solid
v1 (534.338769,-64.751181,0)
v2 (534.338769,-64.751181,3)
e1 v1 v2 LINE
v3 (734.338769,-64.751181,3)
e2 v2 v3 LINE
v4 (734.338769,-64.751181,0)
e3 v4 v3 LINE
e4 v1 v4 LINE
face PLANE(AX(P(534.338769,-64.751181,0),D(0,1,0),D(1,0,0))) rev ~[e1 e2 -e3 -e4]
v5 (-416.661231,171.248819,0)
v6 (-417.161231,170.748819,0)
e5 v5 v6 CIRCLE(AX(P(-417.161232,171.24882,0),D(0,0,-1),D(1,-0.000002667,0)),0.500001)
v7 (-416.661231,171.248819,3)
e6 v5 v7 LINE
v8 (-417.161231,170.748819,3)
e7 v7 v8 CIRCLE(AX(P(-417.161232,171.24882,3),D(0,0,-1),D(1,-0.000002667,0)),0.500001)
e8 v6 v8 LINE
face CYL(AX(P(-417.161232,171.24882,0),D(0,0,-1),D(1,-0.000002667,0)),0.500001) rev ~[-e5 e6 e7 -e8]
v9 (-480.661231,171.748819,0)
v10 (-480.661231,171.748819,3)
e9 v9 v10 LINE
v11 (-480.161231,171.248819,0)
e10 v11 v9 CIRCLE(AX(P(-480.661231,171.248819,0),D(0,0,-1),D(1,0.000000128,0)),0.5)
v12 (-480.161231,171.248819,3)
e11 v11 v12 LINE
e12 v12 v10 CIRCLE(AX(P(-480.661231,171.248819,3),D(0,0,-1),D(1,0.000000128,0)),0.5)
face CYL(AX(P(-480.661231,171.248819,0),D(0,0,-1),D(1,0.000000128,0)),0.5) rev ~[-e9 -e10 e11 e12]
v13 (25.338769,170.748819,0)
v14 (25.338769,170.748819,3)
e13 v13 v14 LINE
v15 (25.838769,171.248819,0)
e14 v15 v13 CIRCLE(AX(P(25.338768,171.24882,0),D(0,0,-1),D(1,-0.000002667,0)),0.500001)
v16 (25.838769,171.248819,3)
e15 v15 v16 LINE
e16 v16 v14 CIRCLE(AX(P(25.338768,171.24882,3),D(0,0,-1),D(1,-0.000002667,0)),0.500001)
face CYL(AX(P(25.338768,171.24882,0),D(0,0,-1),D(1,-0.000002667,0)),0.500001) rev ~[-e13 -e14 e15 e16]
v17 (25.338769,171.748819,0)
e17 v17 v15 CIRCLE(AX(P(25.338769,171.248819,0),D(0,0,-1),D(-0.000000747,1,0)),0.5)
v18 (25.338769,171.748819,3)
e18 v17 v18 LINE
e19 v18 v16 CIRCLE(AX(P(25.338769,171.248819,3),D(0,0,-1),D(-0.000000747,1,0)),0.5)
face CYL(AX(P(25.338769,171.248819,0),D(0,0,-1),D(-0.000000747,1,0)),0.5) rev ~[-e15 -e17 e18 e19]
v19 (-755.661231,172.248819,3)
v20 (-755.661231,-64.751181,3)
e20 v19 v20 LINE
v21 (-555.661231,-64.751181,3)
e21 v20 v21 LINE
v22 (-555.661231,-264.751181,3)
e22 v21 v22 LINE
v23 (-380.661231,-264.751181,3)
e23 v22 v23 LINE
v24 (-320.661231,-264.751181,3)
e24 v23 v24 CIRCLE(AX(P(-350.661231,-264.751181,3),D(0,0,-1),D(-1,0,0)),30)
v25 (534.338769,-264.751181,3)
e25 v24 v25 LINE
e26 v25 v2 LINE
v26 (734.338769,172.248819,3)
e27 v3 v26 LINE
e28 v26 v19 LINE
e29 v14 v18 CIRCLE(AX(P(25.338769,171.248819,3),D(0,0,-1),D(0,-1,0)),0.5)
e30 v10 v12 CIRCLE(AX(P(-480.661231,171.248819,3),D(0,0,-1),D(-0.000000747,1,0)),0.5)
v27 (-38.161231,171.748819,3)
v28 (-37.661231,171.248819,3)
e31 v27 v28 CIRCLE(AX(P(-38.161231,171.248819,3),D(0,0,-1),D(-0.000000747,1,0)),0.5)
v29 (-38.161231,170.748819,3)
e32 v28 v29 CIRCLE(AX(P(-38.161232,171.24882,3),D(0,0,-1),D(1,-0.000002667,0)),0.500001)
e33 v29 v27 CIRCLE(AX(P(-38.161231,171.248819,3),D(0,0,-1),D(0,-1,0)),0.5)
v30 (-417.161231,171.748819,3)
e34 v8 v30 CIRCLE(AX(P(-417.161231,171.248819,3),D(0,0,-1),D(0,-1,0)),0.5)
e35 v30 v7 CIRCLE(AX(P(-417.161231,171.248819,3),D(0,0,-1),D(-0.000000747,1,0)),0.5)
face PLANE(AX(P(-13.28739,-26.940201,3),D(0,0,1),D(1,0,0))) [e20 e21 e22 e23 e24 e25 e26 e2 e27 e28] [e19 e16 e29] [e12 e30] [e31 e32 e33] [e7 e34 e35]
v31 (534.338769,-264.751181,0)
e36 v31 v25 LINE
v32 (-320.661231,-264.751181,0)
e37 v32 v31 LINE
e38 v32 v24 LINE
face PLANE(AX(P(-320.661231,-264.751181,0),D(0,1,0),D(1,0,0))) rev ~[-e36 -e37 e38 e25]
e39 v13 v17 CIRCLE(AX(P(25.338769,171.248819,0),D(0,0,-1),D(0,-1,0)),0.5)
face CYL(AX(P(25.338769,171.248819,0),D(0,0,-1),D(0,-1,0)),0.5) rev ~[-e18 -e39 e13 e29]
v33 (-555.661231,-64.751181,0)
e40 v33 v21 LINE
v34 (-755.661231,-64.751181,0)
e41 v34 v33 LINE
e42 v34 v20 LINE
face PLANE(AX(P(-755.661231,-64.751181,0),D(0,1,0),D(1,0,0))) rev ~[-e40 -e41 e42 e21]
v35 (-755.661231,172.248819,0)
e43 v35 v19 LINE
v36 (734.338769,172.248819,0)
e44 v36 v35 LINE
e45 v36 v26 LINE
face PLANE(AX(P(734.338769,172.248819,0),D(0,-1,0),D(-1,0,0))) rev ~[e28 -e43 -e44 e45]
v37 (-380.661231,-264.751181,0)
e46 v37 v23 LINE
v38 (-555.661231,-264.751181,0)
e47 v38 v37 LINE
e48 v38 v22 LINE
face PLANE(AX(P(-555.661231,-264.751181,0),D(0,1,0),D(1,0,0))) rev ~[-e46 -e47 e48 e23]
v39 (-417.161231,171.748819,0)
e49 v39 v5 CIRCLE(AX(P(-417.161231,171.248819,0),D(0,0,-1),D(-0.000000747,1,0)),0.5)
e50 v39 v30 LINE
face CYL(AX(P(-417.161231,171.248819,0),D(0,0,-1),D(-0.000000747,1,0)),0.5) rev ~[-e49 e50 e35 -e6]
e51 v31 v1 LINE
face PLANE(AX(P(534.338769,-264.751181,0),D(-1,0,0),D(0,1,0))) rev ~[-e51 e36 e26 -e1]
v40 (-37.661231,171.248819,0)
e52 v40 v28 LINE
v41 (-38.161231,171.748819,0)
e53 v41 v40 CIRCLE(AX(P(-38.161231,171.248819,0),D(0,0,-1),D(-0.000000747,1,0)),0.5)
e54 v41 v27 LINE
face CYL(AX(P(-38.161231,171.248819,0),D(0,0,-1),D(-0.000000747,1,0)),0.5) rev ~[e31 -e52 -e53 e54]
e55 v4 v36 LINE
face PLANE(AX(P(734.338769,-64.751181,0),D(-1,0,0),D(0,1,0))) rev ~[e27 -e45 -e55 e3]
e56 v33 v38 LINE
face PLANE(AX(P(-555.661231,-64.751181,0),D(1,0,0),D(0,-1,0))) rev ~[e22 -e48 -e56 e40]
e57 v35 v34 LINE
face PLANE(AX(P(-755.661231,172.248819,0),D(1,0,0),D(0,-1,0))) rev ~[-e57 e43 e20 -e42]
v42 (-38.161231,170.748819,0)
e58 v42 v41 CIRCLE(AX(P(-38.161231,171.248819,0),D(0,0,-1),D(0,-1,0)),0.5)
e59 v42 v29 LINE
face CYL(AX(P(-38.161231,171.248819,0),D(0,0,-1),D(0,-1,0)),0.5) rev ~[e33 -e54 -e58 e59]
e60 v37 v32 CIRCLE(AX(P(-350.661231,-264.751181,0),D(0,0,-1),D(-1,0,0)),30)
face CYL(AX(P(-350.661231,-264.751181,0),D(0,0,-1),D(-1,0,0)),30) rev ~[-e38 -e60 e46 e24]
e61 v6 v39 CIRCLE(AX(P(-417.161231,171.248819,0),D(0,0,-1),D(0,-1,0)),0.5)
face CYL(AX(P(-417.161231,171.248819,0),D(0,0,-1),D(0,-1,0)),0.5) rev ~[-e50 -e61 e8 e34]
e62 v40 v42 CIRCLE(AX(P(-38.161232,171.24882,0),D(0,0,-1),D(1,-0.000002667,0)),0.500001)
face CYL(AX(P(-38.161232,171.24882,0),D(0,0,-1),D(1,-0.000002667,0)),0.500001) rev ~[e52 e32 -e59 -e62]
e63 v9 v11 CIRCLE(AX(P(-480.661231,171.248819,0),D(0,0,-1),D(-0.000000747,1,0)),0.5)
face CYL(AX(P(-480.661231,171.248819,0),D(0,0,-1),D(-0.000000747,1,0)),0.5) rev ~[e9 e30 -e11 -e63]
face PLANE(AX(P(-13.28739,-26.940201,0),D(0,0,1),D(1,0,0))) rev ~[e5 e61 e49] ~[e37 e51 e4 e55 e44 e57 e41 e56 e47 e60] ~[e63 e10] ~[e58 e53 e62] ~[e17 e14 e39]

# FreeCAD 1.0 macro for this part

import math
import FreeCAD as App
import Part
import Sketcher
from FreeCAD import Vector

doc = App.newDocument("Part")
body = doc.addObject("PartDesign::Body", "Body")

# Sketch on XY plane
sketch1 = body.newObject("Sketcher::SketchObject", "Sketch")
sketch1.AttachmentSupport = (doc.getObject("XY_Plane"), [""])
sketch1.MapMode = "FlatFace"
sketch1.addGeometry([
    Part.LineSegment(Vector(-755.66, 172.25, 0), Vector(-755.66, -64.75, 0)),  # 0
    Part.LineSegment(Vector(-755.66, -64.75, 0), Vector(-555.66, -64.75, 0)),  # 1
    Part.LineSegment(Vector(-555.66, -64.75, 0), Vector(-555.66, -264.75, 0)),  # 2
    Part.LineSegment(Vector(-555.66, -264.75, 0), Vector(-380.66, -264.75, 0)),  # 3
    Part.ArcOfCircle(Part.Circle(Vector(-350.66, -264.75, 0), Vector(0, 0, 1), 30), math.radians(0), math.radians(180)),  # 4
    Part.LineSegment(Vector(-320.66, -264.75, 0), Vector(534.34, -264.75, 0)),  # 5
    Part.LineSegment(Vector(534.34, -264.75, 0), Vector(534.34, -64.75, 0)),  # 6
    Part.LineSegment(Vector(534.34, -64.75, 0), Vector(734.34, -64.75, 0)),  # 7
    Part.LineSegment(Vector(734.34, -64.75, 0), Vector(734.34, 172.25, 0)),  # 8
    Part.LineSegment(Vector(734.34, 172.25, 0), Vector(-755.66, 172.25, 0)),  # 9
    Part.ArcOfCircle(Part.Circle(Vector(-480.66, 171.25, 0), Vector(0, 0, 1), 0.5), math.radians(0), math.radians(90)),  # 10
    Part.ArcOfCircle(Part.Circle(Vector(-480.66, 171.25, 0), Vector(0, 0, 1), 0.5), math.radians(90), math.radians(360)),  # 11
    Part.ArcOfCircle(Part.Circle(Vector(-417.16, 171.25, 0), Vector(0, 0, 1), 0.5), math.radians(-90), math.radians(0)),  # 12
    Part.ArcOfCircle(Part.Circle(Vector(-417.16, 171.25, 0), Vector(0, 0, 1), 0.5), math.radians(90), math.radians(270)),  # 13
    Part.ArcOfCircle(Part.Circle(Vector(-417.16, 171.25, 0), Vector(0, 0, 1), 0.5), math.radians(0), math.radians(90)),  # 14
    Part.ArcOfCircle(Part.Circle(Vector(-38.16, 171.25, 0), Vector(0, 0, 1), 0.5), math.radians(-90), math.radians(0)),  # 15
    Part.ArcOfCircle(Part.Circle(Vector(-38.16, 171.25, 0), Vector(0, 0, 1), 0.5), math.radians(90), math.radians(270)),  # 16
    Part.ArcOfCircle(Part.Circle(Vector(-38.16, 171.25, 0), Vector(0, 0, 1), 0.5), math.radians(0), math.radians(90)),  # 17
    Part.ArcOfCircle(Part.Circle(Vector(25.34, 171.25, 0), Vector(0, 0, 1), 0.5), math.radians(-90), math.radians(0)),  # 18
    Part.ArcOfCircle(Part.Circle(Vector(25.34, 171.25, 0), Vector(0, 0, 1), 0.5), math.radians(90), math.radians(270)),  # 19
    Part.ArcOfCircle(Part.Circle(Vector(25.34, 171.25, 0), Vector(0, 0, 1), 0.5), math.radians(0), math.radians(90)),  # 20
], False)
sketch1.addConstraint([
    Sketcher.Constraint("Coincident", 0, 2, 1, 1),
    Sketcher.Constraint("Coincident", 1, 2, 2, 1),
    Sketcher.Constraint("Coincident", 2, 2, 3, 1),
    Sketcher.Constraint("Coincident", 3, 2, 4, 2),
    Sketcher.Constraint("Coincident", 4, 1, 5, 1),
    Sketcher.Constraint("Coincident", 5, 2, 6, 1),
    Sketcher.Constraint("Coincident", 6, 2, 7, 1),
    Sketcher.Constraint("Coincident", 7, 2, 8, 1),
    Sketcher.Constraint("Coincident", 8, 2, 9, 1),
    Sketcher.Constraint("Coincident", 9, 2, 0, 1),
    Sketcher.Constraint("Tangent", 10, 1, 11, 2),
    Sketcher.Constraint("Coincident", 11, 1, 10, 2),
    Sketcher.Constraint("Coincident", 12, 1, 13, 2),
    Sketcher.Constraint("Tangent", 13, 1, 14, 2),
    Sketcher.Constraint("Tangent", 14, 1, 12, 2),
    Sketcher.Constraint("Coincident", 15, 1, 16, 2),
    Sketcher.Constraint("Tangent", 16, 1, 17, 2),
    Sketcher.Constraint("Tangent", 17, 1, 15, 2),
    Sketcher.Constraint("Coincident", 18, 1, 19, 2),
    Sketcher.Constraint("Tangent", 19, 1, 20, 2),
    Sketcher.Constraint("Tangent", 20, 1, 18, 2),
    Sketcher.Constraint("Vertical", 0),
    Sketcher.Constraint("Horizontal", 1),
    Sketcher.Constraint("Vertical", 2),
    Sketcher.Constraint("Horizontal", 3),
    Sketcher.Constraint("Horizontal", 5),
    Sketcher.Constraint("Vertical", 6),
    Sketcher.Constraint("Horizontal", 7),
    Sketcher.Constraint("Vertical", 8),
    Sketcher.Constraint("Horizontal", 9),
    Sketcher.Constraint("Equal", 11, 12),
    Sketcher.Constraint("Equal", 12, 13),
    Sketcher.Constraint("Equal", 14, 15),
    Sketcher.Constraint("Equal", 15, 16),
    Sketcher.Constraint("Equal", 17, 18),
    Sketcher.Constraint("Equal", 18, 19),
    Sketcher.Constraint("Horizontal", 11, 3, 12, 3),
    Sketcher.Constraint("Horizontal", 14, 3, 15, 3),
    Sketcher.Constraint("Horizontal", 17, 3, 18, 3),
    Sketcher.Constraint("Horizontal", 4, 3, 2, 2),
    Sketcher.Constraint("Horizontal", 3, 2, 4, 1),
    Sketcher.Constraint("Horizontal", 1, 2, 6, 2),
    Sketcher.Constraint("Horizontal", 20, 3, 10, 1),
    Sketcher.Constraint("Horizontal", 10, 1, 14, 1),
    Sketcher.Constraint("Horizontal", 14, 1, 17, 1),
    Sketcher.Constraint("Horizontal", 17, 1, 20, 1),
    Sketcher.Constraint("Vertical", 10, 3, 11, 1),
    Sketcher.Constraint("Vertical", 14, 3, 12, 1),
    Sketcher.Constraint("Vertical", 12, 1, 13, 1),
    Sketcher.Constraint("Vertical", 17, 3, 15, 1),
    Sketcher.Constraint("Vertical", 15, 1, 16, 1),
    Sketcher.Constraint("Vertical", 20, 3, 18, 1),
    Sketcher.Constraint("Vertical", 18, 1, 19, 1),
    Sketcher.Constraint("Equal", 1, 7),
    Sketcher.Constraint("Equal", 7, 2),
    Sketcher.Constraint("Radius", 4, 30.0),
    Sketcher.Constraint("Radius", 10, 0.5),
    Sketcher.Constraint("DistanceX", 1, 1, 1, 2, 200.0),
    Sketcher.Constraint("DistanceX", 3, 1, 3, 2, 175.0),
    Sketcher.Constraint("DistanceX", 5, 1, 5, 2, 855.0),
    Sketcher.Constraint("DistanceY", 0, 2, 0, 1, 237.0),
    Sketcher.Constraint("DistanceX", 10, 3, 4, 3, 130.0),
    Sketcher.Constraint("DistanceY", 4, 3, 10, 3, 436.0),
    Sketcher.Constraint("DistanceX", 14, 3, 15, 3, 378.999998),
    Sketcher.Constraint("DistanceX", 20, 3, 5, 2, 509.0),
    Sketcher.Constraint("DistanceX", 10, 1, 12, 3, 62.999999),
    Sketcher.Constraint("DistanceX", 4, 3, -1, 1, 350.661231),
    Sketcher.Constraint("DistanceY", 4, 3, -1, 1, 264.751181),
])
pad1 = body.newObject("PartDesign::Pad", "Pad")
pad1.Profile = sketch1
pad1.Length = 3

# Sketch on XY plane
sketch2 = body.newObject("Sketcher::SketchObject", "Sketch001")
sketch2.AttachmentSupport = (doc.getObject("XY_Plane"), [""])
sketch2.MapMode = "FlatFace"
sketch2.addGeometry([
    Part.LineSegment(Vector(-755.66, 172.25, 0), Vector(-755.66, -64.75, 0)),  # 0
    Part.LineSegment(Vector(-755.66, -64.75, 0), Vector(-555.66, -64.75, 0)),  # 1
    Part.LineSegment(Vector(-555.66, -64.75, 0), Vector(-555.66, -264.75, 0)),  # 2
    Part.LineSegment(Vector(-555.66, -264.75, 0), Vector(534.34, -264.75, 0)),  # 3
    Part.LineSegment(Vector(534.34, -264.75, 0), Vector(534.34, -64.75, 0)),  # 4
    Part.LineSegment(Vector(534.34, -64.75, 0), Vector(734.34, -64.75, 0)),  # 5
    Part.LineSegment(Vector(734.34, -64.75, 0), Vector(734.34, 172.25, 0)),  # 6
    Part.LineSegment(Vector(734.34, 172.25, 0), Vector(-755.66, 172.25, 0)),  # 7
    Part.ArcOfCircle(Part.Circle(Vector(-480.66, 171.25, 0), Vector(0, 0, 1), 0.5), math.radians(0), math.radians(90)),  # 8
    Part.ArcOfCircle(Part.Circle(Vector(-480.66, 171.25, 0), Vector(0, 0, 1), 0.5), math.radians(90), math.radians(360)),  # 9
    Part.ArcOfCircle(Part.Circle(Vector(-417.16, 171.25, 0), Vector(0, 0, 1), 0.5), math.radians(-90), math.radians(0)),  # 10
    Part.ArcOfCircle(Part.Circle(Vector(-417.16, 171.25, 0), Vector(0, 0, 1), 0.5), math.radians(90), math.radians(270)),  # 11
    Part.ArcOfCircle(Part.Circle(Vector(-417.16, 171.25, 0), Vector(0, 0, 1), 0.5), math.radians(0), math.radians(90)),  # 12
    Part.ArcOfCircle(Part.Circle(Vector(-38.16, 171.25, 0), Vector(0, 0, 1), 0.5), math.radians(-90), math.radians(0)),  # 13
    Part.ArcOfCircle(Part.Circle(Vector(-38.16, 171.25, 0), Vector(0, 0, 1), 0.5), math.radians(90), math.radians(270)),  # 14
    Part.ArcOfCircle(Part.Circle(Vector(-38.16, 171.25, 0), Vector(0, 0, 1), 0.5), math.radians(0), math.radians(90)),  # 15
    Part.ArcOfCircle(Part.Circle(Vector(25.34, 171.25, 0), Vector(0, 0, 1), 0.5), math.radians(-90), math.radians(0)),  # 16
    Part.ArcOfCircle(Part.Circle(Vector(25.34, 171.25, 0), Vector(0, 0, 1), 0.5), math.radians(90), math.radians(270)),  # 17
    Part.ArcOfCircle(Part.Circle(Vector(25.34, 171.25, 0), Vector(0, 0, 1), 0.5), math.radians(0), math.radians(90)),  # 18
], False)
sketch2.addConstraint([
    Sketcher.Constraint("Coincident", 0, 2, 1, 1),
    Sketcher.Constraint("Coincident", 1, 2, 2, 1),
    Sketcher.Constraint("Coincident", 2, 2, 3, 1),
    Sketcher.Constraint("Coincident", 3, 2, 4, 1),
    Sketcher.Constraint("Coincident", 4, 2, 5, 1),
    Sketcher.Constraint("Coincident", 5, 2, 6, 1),
    Sketcher.Constraint("Coincident", 6, 2, 7, 1),
    Sketcher.Constraint("Coincident", 7, 2, 0, 1),
    Sketcher.Constraint("Tangent", 8, 1, 9, 2),
    Sketcher.Constraint("Coincident", 9, 1, 8, 2),
    Sketcher.Constraint("Coincident", 10, 1, 11, 2),
    Sketcher.Constraint("Tangent", 11, 1, 12, 2),
    Sketcher.Constraint("Tangent", 12, 1, 10, 2),
    Sketcher.Constraint("Coincident", 13, 1, 14, 2),
    Sketcher.Constraint("Tangent", 14, 1, 15, 2),
    Sketcher.Constraint("Tangent", 15, 1, 13, 2),
    Sketcher.Constraint("Coincident", 16, 1, 17, 2),
    Sketcher.Constraint("Tangent", 17, 1, 18, 2),
    Sketcher.Constraint("Tangent", 18, 1, 16, 2),
    Sketcher.Constraint("Vertical", 0),
    Sketcher.Constraint("Horizontal", 1),
    Sketcher.Constraint("Vertical", 2),
    Sketcher.Constraint("Horizontal", 3),
    Sketcher.Constraint("Vertical", 4),
    Sketcher.Constraint("Horizontal", 5),
    Sketcher.Constraint("Vertical", 6),
    Sketcher.Constraint("Horizontal", 7),
    Sketcher.Constraint("Equal", 9, 10),
    Sketcher.Constraint("Equal", 10, 11),
    Sketcher.Constraint("Equal", 12, 13),
    Sketcher.Constraint("Equal", 13, 14),
    Sketcher.Constraint("Equal", 15, 16),
    Sketcher.Constraint("Equal", 16, 17),
    Sketcher.Constraint("Horizontal", 9, 3, 10, 3),
    Sketcher.Constraint("Horizontal", 12, 3, 13, 3),
    Sketcher.Constraint("Horizontal", 15, 3, 16, 3),
    Sketcher.Constraint("Horizontal", 1, 2, 4, 2),
    Sketcher.Constraint("Horizontal", 18, 3, 8, 1),
    Sketcher.Constraint("Horizontal", 8, 1, 12, 1),
    Sketcher.Constraint("Horizontal", 12, 1, 15, 1),
    Sketcher.Constraint("Horizontal", 15, 1, 18, 1),
    Sketcher.Constraint("Vertical", 8, 3, 9, 1),
    Sketcher.Constraint("Vertical", 12, 3, 10, 1),
    Sketcher.Constraint("Vertical", 10, 1, 11, 1),
    Sketcher.Constraint("Vertical", 15, 3, 13, 1),
    Sketcher.Constraint("Vertical", 13, 1, 14, 1),
    Sketcher.Constraint("Vertical", 18, 3, 16, 1),
    Sketcher.Constraint("Vertical", 16, 1, 17, 1),
    Sketcher.Constraint("Equal", 1, 5),
    Sketcher.Constraint("Equal", 5, 2),
    Sketcher.Constraint("Radius", 8, 0.5),
    Sketcher.Constraint("DistanceX", 1, 1, 1, 2, 200.0),
    Sketcher.Constraint("DistanceX", 3, 1, 3, 2, 1090.0),
    Sketcher.Constraint("DistanceY", 0, 2, 0, 1, 237.0),
    Sketcher.Constraint("DistanceX", 12, 3, 13, 3, 378.999998),
    Sketcher.Constraint("DistanceX", 0, 2, 9, 3, 275.0),
    Sketcher.Constraint("DistanceY", 0, 2, 9, 3, 236.0),
    Sketcher.Constraint("DistanceX", 18, 3, 3, 2, 509.0),
    Sketcher.Constraint("DistanceX", 8, 1, 10, 3, 62.999999),
    Sketcher.Constraint("DistanceX", 8, 3, -1, 1, 480.661231),
    Sketcher.Constraint("DistanceY", -1, 1, 8, 3, 171.248819),
])
pocket1 = body.newObject("PartDesign::Pocket", "Pocket")
pocket1.Profile = sketch2
pocket1.Length = 25

# Sketch on XY plane
sketch3 = body.newObject("Sketcher::SketchObject", "Sketch002")
sketch3.AttachmentSupport = (doc.getObject("XY_Plane"), [""])
sketch3.MapMode = "FlatFace"
sketch3.addGeometry([
    Part.LineSegment(Vector(-755.66, 172.25, 0), Vector(-755.66, -64.75, 0)),  # 0
    Part.LineSegment(Vector(-755.66, -64.75, 0), Vector(-555.66, -64.75, 0)),  # 1
    Part.LineSegment(Vector(-555.66, -64.75, 0), Vector(-555.66, -264.75, 0)),  # 2
    Part.LineSegment(Vector(-555.66, -264.75, 0), Vector(534.34, -264.75, 0)),  # 3
    Part.LineSegment(Vector(534.34, -264.75, 0), Vector(534.34, -64.75, 0)),  # 4
    Part.LineSegment(Vector(534.34, -64.75, 0), Vector(734.34, -64.75, 0)),  # 5
    Part.LineSegment(Vector(734.34, -64.75, 0), Vector(734.34, 172.25, 0)),  # 6
    Part.LineSegment(Vector(734.34, 172.25, 0), Vector(-755.66, 172.25, 0)),  # 7
    Part.ArcOfCircle(Part.Circle(Vector(-480.66, 171.25, 0), Vector(0, 0, 1), 0.5), math.radians(0), math.radians(90)),  # 8
    Part.ArcOfCircle(Part.Circle(Vector(-480.66, 171.25, 0), Vector(0, 0, 1), 0.5), math.radians(90), math.radians(360)),  # 9
    Part.ArcOfCircle(Part.Circle(Vector(-417.16, 171.25, 0), Vector(0, 0, 1), 0.5), math.radians(-90), math.radians(0)),  # 10
    Part.ArcOfCircle(Part.Circle(Vector(-417.16, 171.25, 0), Vector(0, 0, 1), 0.5), math.radians(90), math.radians(270)),  # 11
    Part.ArcOfCircle(Part.Circle(Vector(-417.16, 171.25, 0), Vector(0, 0, 1), 0.5), math.radians(0), math.radians(90)),  # 12
    Part.ArcOfCircle(Part.Circle(Vector(-38.16, 171.25, 0), Vector(0, 0, 1), 0.5), math.radians(-90), math.radians(0)),  # 13
    Part.ArcOfCircle(Part.Circle(Vector(-38.16, 171.25, 0), Vector(0, 0, 1), 0.5), math.radians(90), math.radians(270)),  # 14
    Part.ArcOfCircle(Part.Circle(Vector(-38.16, 171.25, 0), Vector(0, 0, 1), 0.5), math.radians(0), math.radians(90)),  # 15
    Part.ArcOfCircle(Part.Circle(Vector(25.34, 171.25, 0), Vector(0, 0, 1), 0.5), math.radians(-90), math.radians(0)),  # 16
    Part.ArcOfCircle(Part.Circle(Vector(25.34, 171.25, 0), Vector(0, 0, 1), 0.5), math.radians(90), math.radians(270)),  # 17
    Part.ArcOfCircle(Part.Circle(Vector(25.34, 171.25, 0), Vector(0, 0, 1), 0.5), math.radians(0), math.radians(90)),  # 18
], False)
sketch3.addConstraint([
    Sketcher.Constraint("Coincident", 0, 2, 1, 1),
    Sketcher.Constraint("Coincident", 1, 2, 2, 1),
    Sketcher.Constraint("Coincident", 2, 2, 3, 1),
    Sketcher.Constraint("Coincident", 3, 2, 4, 1),
    Sketcher.Constraint("Coincident", 4, 2, 5, 1),
    Sketcher.Constraint("Coincident", 5, 2, 6, 1),
    Sketcher.Constraint("Coincident", 6, 2, 7, 1),
    Sketcher.Constraint("Coincident", 7, 2, 0, 1),
    Sketcher.Constraint("Tangent", 8, 1, 9, 2),
    Sketcher.Constraint("Coincident", 9, 1, 8, 2),
    Sketcher.Constraint("Coincident", 10, 1, 11, 2),
    Sketcher.Constraint("Tangent", 11, 1, 12, 2),
    Sketcher.Constraint("Tangent", 12, 1, 10, 2),
    Sketcher.Constraint("Coincident", 13, 1, 14, 2),
    Sketcher.Constraint("Tangent", 14, 1, 15, 2),
    Sketcher.Constraint("Tangent", 15, 1, 13, 2),
    Sketcher.Constraint("Coincident", 16, 1, 17, 2),
    Sketcher.Constraint("Tangent", 17, 1, 18, 2),
    Sketcher.Constraint("Tangent", 18, 1, 16, 2),
    Sketcher.Constraint("Vertical", 0),
    Sketcher.Constraint("Horizontal", 1),
    Sketcher.Constraint("Vertical", 2),
    Sketcher.Constraint("Horizontal", 3),
    Sketcher.Constraint("Vertical", 4),
    Sketcher.Constraint("Horizontal", 5),
    Sketcher.Constraint("Vertical", 6),
    Sketcher.Constraint("Horizontal", 7),
    Sketcher.Constraint("Equal", 9, 10),
    Sketcher.Constraint("Equal", 10, 11),
    Sketcher.Constraint("Equal", 12, 13),
    Sketcher.Constraint("Equal", 13, 14),
    Sketcher.Constraint("Equal", 15, 16),
    Sketcher.Constraint("Equal", 16, 17),
    Sketcher.Constraint("Horizontal", 9, 3, 10, 3),
    Sketcher.Constraint("Horizontal", 12, 3, 13, 3),
    Sketcher.Constraint("Horizontal", 15, 3, 16, 3),
    Sketcher.Constraint("Horizontal", 1, 2, 4, 2),
    Sketcher.Constraint("Horizontal", 18, 3, 8, 1),
    Sketcher.Constraint("Horizontal", 8, 1, 12, 1),
    Sketcher.Constraint("Horizontal", 12, 1, 15, 1),
    Sketcher.Constraint("Horizontal", 15, 1, 18, 1),
    Sketcher.Constraint("Vertical", 8, 3, 9, 1),
    Sketcher.Constraint("Vertical", 12, 3, 10, 1),
    Sketcher.Constraint("Vertical", 10, 1, 11, 1),
    Sketcher.Constraint("Vertical", 15, 3, 13, 1),
    Sketcher.Constraint("Vertical", 13, 1, 14, 1),
    Sketcher.Constraint("Vertical", 18, 3, 16, 1),
    Sketcher.Constraint("Vertical", 16, 1, 17, 1),
    Sketcher.Constraint("Equal", 1, 5),
    Sketcher.Constraint("Equal", 5, 2),
    Sketcher.Constraint("Radius", 8, 0.5),
    Sketcher.Constraint("DistanceX", 1, 1, 1, 2, 200.0),
    Sketcher.Constraint("DistanceX", 3, 1, 3, 2, 1090.0),
    Sketcher.Constraint("DistanceY", 0, 2, 0, 1, 237.0),
    Sketcher.Constraint("DistanceX", 12, 3, 13, 3, 378.999998),
    Sketcher.Constraint("DistanceX", 0, 2, 9, 3, 275.0),
    Sketcher.Constraint("DistanceY", 0, 2, 9, 3, 236.0),
    Sketcher.Constraint("DistanceX", 18, 3, 3, 2, 509.0),
    Sketcher.Constraint("DistanceX", 8, 1, 10, 3, 62.999999),
    Sketcher.Constraint("DistanceX", 8, 3, -1, 1, 480.661231),
    Sketcher.Constraint("DistanceY", -1, 1, 8, 3, 171.248819),
])
pocket2 = body.newObject("PartDesign::Pocket", "Pocket001")
pocket2.Profile = sketch3
pocket2.Length = 25

doc.recompute()
